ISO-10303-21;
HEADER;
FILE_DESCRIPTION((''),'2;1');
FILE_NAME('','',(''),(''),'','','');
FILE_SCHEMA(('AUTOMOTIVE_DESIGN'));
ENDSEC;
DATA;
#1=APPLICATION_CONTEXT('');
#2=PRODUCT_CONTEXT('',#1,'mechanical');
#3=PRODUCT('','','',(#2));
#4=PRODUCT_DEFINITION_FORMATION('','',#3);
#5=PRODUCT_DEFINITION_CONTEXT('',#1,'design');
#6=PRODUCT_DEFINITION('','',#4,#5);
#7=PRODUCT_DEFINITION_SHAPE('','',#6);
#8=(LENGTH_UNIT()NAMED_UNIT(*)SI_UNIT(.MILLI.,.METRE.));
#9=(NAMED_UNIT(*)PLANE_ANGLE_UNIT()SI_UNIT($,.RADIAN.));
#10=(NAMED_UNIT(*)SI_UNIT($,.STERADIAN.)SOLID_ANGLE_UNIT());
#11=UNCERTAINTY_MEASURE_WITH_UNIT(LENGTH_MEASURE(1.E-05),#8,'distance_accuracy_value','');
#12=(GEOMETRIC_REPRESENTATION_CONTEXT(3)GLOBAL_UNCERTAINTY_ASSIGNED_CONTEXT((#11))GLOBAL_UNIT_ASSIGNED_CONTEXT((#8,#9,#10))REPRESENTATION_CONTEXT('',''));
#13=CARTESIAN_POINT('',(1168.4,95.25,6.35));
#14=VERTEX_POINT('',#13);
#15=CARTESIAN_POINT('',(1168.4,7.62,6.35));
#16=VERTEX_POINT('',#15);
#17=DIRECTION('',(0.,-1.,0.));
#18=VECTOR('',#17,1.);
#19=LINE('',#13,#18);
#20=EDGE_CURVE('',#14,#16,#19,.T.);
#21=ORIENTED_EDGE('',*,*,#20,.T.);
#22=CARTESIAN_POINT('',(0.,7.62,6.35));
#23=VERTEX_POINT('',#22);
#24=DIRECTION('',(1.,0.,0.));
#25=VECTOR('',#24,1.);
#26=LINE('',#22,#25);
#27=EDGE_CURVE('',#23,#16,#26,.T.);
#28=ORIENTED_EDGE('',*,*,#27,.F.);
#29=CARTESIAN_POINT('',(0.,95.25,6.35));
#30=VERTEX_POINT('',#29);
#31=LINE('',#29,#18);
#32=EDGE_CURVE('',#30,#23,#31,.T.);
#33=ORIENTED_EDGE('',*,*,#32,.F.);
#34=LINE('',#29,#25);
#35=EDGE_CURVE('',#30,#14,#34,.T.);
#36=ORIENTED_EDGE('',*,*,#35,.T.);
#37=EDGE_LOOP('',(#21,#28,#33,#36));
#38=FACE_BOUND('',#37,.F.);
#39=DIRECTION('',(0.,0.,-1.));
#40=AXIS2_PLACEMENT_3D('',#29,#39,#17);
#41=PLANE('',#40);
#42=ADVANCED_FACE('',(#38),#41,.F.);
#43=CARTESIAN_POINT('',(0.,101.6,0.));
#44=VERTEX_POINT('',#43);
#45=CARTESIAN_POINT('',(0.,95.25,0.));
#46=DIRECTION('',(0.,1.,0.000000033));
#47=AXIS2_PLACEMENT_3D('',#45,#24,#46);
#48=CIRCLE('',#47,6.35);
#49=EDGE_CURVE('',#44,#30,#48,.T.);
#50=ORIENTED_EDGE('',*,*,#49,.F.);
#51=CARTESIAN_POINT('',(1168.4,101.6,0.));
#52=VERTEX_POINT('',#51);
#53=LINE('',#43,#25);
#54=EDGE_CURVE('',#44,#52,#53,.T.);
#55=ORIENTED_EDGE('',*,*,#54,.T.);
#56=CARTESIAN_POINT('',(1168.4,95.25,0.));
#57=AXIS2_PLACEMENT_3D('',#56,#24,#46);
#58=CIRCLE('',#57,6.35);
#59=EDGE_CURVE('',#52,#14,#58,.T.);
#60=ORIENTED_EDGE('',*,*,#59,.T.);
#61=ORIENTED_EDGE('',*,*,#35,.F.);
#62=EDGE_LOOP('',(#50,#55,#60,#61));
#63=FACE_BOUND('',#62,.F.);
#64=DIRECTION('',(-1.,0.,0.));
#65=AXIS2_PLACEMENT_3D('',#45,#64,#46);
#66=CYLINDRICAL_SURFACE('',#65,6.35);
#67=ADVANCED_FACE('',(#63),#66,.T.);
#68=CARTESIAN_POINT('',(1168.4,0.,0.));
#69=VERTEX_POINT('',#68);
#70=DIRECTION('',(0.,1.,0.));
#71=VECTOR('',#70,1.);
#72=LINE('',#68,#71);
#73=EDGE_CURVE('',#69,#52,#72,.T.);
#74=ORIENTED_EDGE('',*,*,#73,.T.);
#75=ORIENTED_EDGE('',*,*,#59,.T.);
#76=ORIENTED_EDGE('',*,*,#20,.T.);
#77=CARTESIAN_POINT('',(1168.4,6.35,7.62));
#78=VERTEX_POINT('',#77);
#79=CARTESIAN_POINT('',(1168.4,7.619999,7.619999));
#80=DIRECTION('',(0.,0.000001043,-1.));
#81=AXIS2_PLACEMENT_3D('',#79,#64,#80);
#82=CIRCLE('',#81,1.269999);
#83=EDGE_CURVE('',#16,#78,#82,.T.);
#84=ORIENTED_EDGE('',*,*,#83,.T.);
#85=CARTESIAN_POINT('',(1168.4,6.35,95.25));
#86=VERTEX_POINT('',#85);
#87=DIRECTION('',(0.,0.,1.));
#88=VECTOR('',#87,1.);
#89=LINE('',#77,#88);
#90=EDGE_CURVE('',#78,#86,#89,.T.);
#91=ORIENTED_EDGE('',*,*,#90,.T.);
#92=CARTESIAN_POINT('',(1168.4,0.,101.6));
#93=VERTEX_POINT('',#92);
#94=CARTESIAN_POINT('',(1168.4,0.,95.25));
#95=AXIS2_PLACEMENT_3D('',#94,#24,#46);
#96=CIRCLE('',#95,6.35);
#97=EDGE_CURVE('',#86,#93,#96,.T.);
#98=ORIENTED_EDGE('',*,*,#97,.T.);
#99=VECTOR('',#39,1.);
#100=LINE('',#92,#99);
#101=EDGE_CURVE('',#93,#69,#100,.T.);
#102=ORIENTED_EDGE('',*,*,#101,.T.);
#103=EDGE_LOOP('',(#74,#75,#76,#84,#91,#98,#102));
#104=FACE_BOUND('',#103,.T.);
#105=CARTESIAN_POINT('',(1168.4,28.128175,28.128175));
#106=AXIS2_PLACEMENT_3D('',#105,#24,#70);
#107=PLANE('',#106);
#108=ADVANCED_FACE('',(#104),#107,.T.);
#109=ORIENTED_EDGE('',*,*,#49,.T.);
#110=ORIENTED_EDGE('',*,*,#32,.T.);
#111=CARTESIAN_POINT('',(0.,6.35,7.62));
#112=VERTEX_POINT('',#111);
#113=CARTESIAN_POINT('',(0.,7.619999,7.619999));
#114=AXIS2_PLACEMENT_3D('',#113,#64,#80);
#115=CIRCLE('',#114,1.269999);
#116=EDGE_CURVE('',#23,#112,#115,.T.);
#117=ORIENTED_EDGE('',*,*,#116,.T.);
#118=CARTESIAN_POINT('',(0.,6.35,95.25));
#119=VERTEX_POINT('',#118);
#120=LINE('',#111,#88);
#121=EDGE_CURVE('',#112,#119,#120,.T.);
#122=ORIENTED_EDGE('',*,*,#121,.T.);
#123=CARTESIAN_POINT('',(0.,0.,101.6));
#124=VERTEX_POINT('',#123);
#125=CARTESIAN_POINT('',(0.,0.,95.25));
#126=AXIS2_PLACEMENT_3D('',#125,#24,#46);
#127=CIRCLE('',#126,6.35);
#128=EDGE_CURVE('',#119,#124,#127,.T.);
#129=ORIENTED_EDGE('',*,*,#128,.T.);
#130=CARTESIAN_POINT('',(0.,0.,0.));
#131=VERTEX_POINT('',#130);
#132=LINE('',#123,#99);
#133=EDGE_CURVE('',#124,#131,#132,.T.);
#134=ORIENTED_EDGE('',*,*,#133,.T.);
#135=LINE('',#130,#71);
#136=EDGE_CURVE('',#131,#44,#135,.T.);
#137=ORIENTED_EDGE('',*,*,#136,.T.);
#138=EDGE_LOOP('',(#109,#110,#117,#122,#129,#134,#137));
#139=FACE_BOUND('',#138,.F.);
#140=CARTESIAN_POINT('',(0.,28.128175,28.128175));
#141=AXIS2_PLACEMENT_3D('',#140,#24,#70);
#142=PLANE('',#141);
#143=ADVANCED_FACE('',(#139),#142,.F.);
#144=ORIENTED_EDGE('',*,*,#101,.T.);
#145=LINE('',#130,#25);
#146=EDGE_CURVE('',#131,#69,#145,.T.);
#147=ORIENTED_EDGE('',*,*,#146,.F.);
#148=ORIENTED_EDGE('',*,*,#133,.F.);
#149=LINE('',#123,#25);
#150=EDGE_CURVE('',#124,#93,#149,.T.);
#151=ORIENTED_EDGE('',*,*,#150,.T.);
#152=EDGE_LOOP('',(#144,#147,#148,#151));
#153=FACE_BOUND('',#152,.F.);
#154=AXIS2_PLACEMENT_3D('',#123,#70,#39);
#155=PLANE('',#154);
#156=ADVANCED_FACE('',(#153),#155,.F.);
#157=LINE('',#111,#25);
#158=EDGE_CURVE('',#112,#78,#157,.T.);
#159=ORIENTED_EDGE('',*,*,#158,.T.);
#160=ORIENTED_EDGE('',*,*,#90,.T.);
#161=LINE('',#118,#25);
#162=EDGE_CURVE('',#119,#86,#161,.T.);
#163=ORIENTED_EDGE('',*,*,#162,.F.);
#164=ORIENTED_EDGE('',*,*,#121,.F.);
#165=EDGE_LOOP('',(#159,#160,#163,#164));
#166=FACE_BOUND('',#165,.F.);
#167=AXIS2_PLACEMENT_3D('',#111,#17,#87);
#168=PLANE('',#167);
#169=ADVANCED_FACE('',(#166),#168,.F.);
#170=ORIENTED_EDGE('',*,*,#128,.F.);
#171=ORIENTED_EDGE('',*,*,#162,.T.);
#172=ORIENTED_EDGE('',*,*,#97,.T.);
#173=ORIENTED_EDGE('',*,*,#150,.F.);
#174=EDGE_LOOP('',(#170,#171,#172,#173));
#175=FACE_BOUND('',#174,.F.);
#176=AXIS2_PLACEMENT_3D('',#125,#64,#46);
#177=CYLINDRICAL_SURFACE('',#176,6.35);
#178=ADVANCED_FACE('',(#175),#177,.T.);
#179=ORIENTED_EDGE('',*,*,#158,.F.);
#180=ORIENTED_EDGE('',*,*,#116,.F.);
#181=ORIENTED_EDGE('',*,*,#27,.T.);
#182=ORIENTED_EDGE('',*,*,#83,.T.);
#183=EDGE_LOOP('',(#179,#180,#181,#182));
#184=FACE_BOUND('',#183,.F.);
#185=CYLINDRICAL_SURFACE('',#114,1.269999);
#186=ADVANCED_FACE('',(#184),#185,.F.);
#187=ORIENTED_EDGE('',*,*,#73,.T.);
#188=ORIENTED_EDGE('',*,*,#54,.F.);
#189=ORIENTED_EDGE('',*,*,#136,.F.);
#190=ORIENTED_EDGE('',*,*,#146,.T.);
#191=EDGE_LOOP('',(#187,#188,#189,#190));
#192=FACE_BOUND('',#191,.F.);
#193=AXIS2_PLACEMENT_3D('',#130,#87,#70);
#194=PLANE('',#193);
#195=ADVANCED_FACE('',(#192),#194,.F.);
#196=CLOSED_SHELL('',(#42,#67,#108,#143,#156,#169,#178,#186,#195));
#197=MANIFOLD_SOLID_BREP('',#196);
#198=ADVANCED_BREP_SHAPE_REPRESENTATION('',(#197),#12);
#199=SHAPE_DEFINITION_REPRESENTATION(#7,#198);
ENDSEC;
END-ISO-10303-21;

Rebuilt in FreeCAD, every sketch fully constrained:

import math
import FreeCAD as App
import Part
import Sketcher
from FreeCAD import Vector
Q = App.Units.Quantity

doc = App.newDocument("Part")
body = doc.addObject("PartDesign::Body", "Body")

# Sketch on YZ plane
sketch1 = doc.addObject("Sketcher::SketchObject", "Sketch")
body.addObject(sketch1)
sketch1.AttachmentSupport = (doc.YZ_Plane, [""])
sketch1.MapMode = "FlatFace"
sketch1.addGeometry([
    Part.LineSegment(Vector(0, 101.6, 0), Vector(0, 0, 0)),  # 0
    Part.LineSegment(Vector(0, 0, 0), Vector(101.6, 0, 0)),  # 1
    Part.ArcOfCircle(Part.Circle(Vector(95.2, 0, 0), Vector(0, 0, 1), 6.4), math.radians(0), math.radians(90)),  # 2
    Part.LineSegment(Vector(95.2, 6.3, 0), Vector(7.6, 6.3, 0)),  # 3
    Part.ArcOfCircle(Part.Circle(Vector(7.6, 7.6, 0), Vector(0, 0, 1), 1.3), math.radians(180), math.radians(270)),  # 4
    Part.LineSegment(Vector(6.3, 7.6, 0), Vector(6.3, 95.2, 0)),  # 5
    Part.ArcOfCircle(Part.Circle(Vector(0, 95.2, 0), Vector(0, 0, 1), 6.4), math.radians(0), math.radians(90)),  # 6
], False)
sketch1.addConstraint([
    Sketcher.Constraint("Coincident", 0, 2, 1, 1),
    Sketcher.Constraint("Coincident", 1, 2, 2, 1),
    Sketcher.Constraint("Tangent", 2, 2, 3, 1),
    Sketcher.Constraint("Tangent", 3, 2, 4, 2),
    Sketcher.Constraint("Tangent", 4, 1, 5, 1),
    Sketcher.Constraint("Tangent", 5, 2, 6, 1),
    Sketcher.Constraint("Coincident", 6, 2, 0, 1),
    Sketcher.Constraint("Vertical", 0),
    Sketcher.Constraint("Horizontal", 1),
    Sketcher.Constraint("Horizontal", 3),
    Sketcher.Constraint("Vertical", 5),
    Sketcher.Constraint("Coincident", 0, 2, -1, 1),
    Sketcher.Constraint("Equal", 2, 6),
    Sketcher.Constraint("PointOnObject", 2, 3, -1),
    Sketcher.Constraint("PointOnObject", 6, 3, -2),
    Sketcher.Constraint("Equal", 1, 0),
    Sketcher.Constraint("DistanceX", 1, 1, 1, 2, Q("4 in")),
    Sketcher.Constraint("Radius", 2, Q("0.25 in")),
    Sketcher.Constraint("Radius", 4, Q("0.0499999 in")),
])
pad1 = doc.addObject("PartDesign::Pad", "Pad")
body.addObject(pad1)
pad1.Profile = sketch1
pad1.Length = Q("46 in")

doc.recompute()
